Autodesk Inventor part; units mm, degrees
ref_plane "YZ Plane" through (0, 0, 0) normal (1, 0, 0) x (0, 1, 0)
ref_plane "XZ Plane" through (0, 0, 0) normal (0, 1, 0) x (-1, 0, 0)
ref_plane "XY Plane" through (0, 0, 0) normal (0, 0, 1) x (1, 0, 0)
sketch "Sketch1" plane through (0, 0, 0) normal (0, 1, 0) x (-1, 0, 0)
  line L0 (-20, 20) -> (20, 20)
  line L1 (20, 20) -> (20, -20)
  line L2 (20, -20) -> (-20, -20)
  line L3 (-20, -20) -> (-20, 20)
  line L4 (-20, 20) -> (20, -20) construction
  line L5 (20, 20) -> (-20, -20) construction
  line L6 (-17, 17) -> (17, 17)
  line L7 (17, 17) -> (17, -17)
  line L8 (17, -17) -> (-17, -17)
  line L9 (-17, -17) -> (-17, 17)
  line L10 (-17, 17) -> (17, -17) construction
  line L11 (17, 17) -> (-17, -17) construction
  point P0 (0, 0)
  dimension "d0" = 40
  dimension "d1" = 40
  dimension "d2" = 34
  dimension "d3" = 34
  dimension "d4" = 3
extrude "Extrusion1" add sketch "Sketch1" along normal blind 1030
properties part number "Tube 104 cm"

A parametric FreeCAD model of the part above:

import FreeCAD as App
import Part
import Sketcher
Q = App.Units.Quantity


def add_polygon(sketch, points):
    """Adds a closed chain of lines whose ends are joined by coincident constraints."""
    first, n = sketch.GeometryCount, len(points)
    for a, b in zip(points, points[1:] + points[:1]):
        sketch.addGeometry(Part.LineSegment(App.Vector(*a, 0), App.Vector(*b, 0)), False)
    for i in range(n):
        sketch.addConstraint(Sketcher.Constraint("Coincident", first + i, 2, first + (i + 1) % n, 1))

doc = App.newDocument("Part")
body = doc.addObject("PartDesign::Body", "Body")

# Sketch on XZ plane
sketch1 = body.newObject("Sketcher::SketchObject", "Sketch")
sketch1.AttachmentSupport = (doc.getObject("XZ_Plane"), [""])
sketch1.MapMode = "FlatFace"
add_polygon(sketch1, [(-20, 20), (20, 20), (20, -20), (-20, -20)])  # lines 0-3
add_polygon(sketch1, [(17, -17), (17, 17), (-17, 17), (-17, -17)])  # lines 4-7
sketch1.addConstraint(Sketcher.Constraint("Horizontal", 0))
sketch1.addConstraint(Sketcher.Constraint("Vertical", 1))
sketch1.addConstraint(Sketcher.Constraint("Horizontal", 2))
sketch1.addConstraint(Sketcher.Constraint("Vertical", 3))
sketch1.addConstraint(Sketcher.Constraint("Vertical", 4))
sketch1.addConstraint(Sketcher.Constraint("Horizontal", 5))
sketch1.addConstraint(Sketcher.Constraint("Vertical", 6))
sketch1.addConstraint(Sketcher.Constraint("Horizontal", 7))
sketch1.addConstraint(Sketcher.Constraint("Symmetric", 0, 2, 2, 2, -1, 1))
sketch1.addConstraint(Sketcher.Constraint("Symmetric", 4, 2, 6, 2, -1, 1))
sketch1.addConstraint(Sketcher.Constraint("Equal", 2, 1))
sketch1.addConstraint(Sketcher.Constraint("Equal", 7, 4))
sketch1.addConstraint(Sketcher.Constraint("DistanceX", 0, 1, 0, 2, Q("40 mm")))
sketch1.addConstraint(Sketcher.Constraint("DistanceX", 5, 2, 5, 1, Q("34 mm")))
pad1 = body.newObject("PartDesign::Pad", "Pad")
pad1.Profile = sketch1
pad1.Length = 1030
pad1.Reversed = True

doc.recompute()
